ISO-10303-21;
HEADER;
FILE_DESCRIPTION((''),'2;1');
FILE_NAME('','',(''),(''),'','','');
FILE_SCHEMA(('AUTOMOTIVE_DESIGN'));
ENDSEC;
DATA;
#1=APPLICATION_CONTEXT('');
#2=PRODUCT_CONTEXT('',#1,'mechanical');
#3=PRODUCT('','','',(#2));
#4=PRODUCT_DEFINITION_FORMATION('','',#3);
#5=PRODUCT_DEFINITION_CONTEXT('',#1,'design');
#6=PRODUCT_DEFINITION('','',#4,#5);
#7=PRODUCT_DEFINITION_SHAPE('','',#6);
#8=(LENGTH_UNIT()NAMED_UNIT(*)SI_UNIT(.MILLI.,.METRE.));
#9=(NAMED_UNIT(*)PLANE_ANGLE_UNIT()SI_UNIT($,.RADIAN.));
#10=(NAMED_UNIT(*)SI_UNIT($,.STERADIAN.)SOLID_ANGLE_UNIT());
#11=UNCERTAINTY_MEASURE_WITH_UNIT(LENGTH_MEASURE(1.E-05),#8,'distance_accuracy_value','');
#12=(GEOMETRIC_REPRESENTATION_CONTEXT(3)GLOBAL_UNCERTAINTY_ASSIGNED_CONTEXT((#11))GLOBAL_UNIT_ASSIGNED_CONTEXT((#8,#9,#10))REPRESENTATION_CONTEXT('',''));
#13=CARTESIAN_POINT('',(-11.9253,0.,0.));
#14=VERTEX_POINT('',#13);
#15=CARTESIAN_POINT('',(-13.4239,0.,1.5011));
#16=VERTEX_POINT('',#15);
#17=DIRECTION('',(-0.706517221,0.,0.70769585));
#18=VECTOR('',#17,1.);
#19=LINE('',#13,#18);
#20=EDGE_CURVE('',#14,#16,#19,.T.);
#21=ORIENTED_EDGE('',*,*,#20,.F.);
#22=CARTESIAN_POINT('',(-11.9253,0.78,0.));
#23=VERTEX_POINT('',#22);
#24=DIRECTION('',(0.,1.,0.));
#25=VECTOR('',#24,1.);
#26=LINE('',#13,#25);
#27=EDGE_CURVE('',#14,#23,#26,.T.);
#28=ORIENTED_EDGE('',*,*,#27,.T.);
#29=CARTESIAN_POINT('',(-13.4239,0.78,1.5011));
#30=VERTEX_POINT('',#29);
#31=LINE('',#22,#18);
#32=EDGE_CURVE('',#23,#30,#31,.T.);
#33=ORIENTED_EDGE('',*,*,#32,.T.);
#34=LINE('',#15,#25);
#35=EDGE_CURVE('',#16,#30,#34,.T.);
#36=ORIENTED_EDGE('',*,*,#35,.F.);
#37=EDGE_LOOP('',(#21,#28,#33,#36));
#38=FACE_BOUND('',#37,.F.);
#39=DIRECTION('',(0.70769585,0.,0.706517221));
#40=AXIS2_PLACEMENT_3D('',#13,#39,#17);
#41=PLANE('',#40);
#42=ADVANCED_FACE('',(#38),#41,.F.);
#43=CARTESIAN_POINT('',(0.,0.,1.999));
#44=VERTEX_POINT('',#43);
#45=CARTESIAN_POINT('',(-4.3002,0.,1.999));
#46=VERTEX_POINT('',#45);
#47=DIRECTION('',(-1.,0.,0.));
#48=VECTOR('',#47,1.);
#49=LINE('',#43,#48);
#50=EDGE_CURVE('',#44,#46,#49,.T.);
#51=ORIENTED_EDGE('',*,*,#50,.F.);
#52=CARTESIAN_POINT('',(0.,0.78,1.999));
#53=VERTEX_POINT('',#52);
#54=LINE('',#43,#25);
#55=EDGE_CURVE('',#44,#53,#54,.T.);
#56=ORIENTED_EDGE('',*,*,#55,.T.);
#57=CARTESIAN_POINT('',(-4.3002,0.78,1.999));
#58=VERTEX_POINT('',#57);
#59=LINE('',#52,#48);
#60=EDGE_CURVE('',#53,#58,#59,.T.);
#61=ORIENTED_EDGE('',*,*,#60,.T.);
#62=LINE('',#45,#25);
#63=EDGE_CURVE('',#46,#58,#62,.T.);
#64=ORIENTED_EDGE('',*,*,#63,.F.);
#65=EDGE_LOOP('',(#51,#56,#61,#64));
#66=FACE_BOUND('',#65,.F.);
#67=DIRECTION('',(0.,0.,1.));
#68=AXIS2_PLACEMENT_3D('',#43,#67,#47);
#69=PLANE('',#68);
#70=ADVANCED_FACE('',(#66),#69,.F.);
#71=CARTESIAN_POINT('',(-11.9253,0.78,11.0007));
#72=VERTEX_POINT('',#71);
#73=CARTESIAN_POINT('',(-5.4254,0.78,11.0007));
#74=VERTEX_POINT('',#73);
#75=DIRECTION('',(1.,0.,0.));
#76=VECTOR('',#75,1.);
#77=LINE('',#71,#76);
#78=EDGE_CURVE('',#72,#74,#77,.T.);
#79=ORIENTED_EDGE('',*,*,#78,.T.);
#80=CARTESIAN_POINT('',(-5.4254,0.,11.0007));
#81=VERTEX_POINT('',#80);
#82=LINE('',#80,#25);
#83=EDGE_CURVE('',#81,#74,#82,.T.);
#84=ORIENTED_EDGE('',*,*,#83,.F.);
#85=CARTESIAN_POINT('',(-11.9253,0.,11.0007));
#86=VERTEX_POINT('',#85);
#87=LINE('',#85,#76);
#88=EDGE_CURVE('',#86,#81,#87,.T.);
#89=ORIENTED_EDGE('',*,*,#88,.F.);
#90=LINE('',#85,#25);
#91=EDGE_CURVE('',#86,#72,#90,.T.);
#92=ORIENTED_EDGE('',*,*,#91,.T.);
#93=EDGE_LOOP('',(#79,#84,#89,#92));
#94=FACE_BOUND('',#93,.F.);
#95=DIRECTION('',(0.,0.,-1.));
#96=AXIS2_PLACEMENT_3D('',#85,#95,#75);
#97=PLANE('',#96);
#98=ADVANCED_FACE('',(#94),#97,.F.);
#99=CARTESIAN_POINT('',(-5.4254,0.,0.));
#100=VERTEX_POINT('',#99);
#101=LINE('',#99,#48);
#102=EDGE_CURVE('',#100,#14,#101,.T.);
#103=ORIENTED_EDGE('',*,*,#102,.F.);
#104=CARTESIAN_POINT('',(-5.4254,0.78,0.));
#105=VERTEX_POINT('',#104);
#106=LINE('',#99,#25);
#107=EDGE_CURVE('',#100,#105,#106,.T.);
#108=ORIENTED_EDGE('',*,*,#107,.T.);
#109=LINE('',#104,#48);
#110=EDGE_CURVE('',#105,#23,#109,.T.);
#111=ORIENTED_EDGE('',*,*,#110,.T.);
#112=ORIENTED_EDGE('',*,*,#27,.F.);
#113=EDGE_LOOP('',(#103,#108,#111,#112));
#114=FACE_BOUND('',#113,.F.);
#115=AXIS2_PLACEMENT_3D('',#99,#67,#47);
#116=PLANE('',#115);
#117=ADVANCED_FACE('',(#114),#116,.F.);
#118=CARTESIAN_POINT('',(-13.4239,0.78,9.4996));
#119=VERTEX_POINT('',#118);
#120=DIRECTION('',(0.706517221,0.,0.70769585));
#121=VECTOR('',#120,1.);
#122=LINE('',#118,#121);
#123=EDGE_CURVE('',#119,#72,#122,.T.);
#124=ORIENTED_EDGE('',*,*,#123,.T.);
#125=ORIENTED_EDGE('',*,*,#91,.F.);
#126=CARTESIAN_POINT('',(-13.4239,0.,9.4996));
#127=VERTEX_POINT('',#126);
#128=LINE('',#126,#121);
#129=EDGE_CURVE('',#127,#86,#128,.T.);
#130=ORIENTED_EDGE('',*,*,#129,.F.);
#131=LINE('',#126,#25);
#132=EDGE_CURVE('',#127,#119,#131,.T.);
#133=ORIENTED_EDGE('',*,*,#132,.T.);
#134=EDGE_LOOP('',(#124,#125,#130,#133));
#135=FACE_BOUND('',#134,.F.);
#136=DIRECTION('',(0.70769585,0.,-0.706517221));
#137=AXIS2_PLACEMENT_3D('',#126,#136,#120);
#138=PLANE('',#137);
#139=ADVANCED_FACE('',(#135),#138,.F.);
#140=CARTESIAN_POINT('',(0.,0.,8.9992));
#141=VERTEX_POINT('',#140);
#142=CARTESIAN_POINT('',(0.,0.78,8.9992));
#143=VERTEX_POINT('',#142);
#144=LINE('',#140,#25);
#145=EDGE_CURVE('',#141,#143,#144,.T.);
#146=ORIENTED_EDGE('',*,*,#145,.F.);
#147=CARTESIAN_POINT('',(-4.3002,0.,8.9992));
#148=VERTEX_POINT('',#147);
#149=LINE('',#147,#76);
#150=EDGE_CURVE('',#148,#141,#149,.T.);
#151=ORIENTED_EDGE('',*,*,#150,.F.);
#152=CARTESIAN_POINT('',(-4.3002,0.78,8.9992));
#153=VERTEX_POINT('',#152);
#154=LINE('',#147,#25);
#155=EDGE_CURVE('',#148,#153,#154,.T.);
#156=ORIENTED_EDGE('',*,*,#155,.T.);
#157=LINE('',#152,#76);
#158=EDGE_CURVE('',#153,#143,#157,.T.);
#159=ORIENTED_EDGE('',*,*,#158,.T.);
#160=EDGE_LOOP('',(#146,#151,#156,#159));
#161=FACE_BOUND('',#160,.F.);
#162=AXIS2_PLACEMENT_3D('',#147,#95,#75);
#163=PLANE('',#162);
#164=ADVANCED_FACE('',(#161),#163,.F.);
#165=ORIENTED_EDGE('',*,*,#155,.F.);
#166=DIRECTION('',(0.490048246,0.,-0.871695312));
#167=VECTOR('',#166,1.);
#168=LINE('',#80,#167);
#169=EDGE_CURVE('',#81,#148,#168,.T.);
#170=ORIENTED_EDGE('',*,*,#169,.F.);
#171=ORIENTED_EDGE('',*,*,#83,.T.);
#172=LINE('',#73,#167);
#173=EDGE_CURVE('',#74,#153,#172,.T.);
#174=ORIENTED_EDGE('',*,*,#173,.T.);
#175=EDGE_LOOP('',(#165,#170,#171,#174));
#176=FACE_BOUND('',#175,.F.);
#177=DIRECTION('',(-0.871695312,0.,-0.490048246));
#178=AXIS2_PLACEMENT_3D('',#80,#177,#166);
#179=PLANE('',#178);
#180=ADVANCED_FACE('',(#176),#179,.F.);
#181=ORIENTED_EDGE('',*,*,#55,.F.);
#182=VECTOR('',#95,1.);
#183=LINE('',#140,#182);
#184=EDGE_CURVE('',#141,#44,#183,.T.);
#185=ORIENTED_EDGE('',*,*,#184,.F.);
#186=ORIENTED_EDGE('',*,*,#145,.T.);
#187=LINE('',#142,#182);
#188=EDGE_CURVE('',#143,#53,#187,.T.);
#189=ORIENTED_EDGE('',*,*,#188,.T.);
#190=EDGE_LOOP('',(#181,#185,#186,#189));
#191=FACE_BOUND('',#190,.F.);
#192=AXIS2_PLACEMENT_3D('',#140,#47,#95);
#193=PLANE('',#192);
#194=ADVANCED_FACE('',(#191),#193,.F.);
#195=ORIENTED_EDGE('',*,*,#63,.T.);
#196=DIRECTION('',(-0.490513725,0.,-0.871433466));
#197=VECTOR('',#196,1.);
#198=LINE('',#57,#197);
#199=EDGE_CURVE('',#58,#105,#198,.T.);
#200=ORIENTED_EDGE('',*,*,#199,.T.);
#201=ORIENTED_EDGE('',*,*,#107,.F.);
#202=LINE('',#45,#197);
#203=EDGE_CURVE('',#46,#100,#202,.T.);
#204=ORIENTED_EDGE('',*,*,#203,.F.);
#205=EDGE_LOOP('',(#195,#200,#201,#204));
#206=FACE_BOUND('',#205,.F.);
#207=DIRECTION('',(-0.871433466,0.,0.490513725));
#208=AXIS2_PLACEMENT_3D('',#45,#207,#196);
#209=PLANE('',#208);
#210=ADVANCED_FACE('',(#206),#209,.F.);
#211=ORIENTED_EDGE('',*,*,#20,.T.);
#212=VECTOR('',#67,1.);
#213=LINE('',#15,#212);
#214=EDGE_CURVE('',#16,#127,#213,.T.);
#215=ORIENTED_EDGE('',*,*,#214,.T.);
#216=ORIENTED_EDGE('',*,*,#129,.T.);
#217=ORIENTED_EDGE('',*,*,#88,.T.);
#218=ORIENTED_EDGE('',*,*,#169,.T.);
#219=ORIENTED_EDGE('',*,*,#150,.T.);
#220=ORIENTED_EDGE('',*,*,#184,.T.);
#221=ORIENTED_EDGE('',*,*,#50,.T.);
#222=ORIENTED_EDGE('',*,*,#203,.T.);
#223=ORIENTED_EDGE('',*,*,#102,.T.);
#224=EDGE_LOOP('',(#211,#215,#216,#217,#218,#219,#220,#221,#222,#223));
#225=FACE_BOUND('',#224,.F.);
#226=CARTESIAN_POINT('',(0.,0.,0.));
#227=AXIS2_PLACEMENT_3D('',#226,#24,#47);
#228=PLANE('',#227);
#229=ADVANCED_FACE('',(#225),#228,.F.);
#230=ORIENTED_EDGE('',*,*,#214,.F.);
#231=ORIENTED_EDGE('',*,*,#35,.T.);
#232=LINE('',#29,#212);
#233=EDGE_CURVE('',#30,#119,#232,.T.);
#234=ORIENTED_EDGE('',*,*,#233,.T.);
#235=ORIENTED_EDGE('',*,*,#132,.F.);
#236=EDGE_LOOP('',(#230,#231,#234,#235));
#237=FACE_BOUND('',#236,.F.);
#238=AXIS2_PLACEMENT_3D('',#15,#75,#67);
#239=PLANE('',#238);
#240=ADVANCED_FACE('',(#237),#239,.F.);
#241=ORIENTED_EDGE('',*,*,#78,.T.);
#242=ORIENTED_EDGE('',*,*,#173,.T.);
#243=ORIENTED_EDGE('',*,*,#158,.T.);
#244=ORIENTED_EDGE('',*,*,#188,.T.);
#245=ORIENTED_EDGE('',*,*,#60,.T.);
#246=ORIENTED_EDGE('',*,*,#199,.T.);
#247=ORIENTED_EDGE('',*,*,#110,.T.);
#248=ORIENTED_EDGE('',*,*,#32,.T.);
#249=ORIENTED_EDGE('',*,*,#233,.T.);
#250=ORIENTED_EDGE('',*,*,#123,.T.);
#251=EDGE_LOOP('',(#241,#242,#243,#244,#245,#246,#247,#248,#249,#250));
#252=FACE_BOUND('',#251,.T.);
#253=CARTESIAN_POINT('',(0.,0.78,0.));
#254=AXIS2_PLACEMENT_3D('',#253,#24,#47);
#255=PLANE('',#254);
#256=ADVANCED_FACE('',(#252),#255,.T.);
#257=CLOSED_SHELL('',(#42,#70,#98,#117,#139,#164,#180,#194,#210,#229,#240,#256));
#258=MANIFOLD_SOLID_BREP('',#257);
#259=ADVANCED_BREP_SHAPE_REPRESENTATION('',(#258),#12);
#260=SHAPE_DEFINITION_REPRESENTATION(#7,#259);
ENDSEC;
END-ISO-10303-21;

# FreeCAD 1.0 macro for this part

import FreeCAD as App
import Part
import Sketcher

V = App.Vector
Q = App.Units.Quantity


def add_polygon(sketch, points):
    """Adds a closed chain of lines whose ends are joined by coincident constraints."""
    first, n = sketch.GeometryCount, len(points)
    for a, b in zip(points, points[1:] + points[:1]):
        sketch.addGeometry(Part.LineSegment(App.Vector(*a, 0), App.Vector(*b, 0)), False)
    for i in range(n):
        sketch.addConstraint(Sketcher.Constraint("Coincident", first + i, 2, first + (i + 1) % n, 1))

doc = App.newDocument("Part")
body = doc.addObject("PartDesign::Body", "Body")

sketch1 = body.newObject("Sketcher::SketchObject", "Sketch")
sketch1.AttachmentSupport = (doc.getObject("XZ_Plane"), [""])
sketch1.MapMode = "FlatFace"
add_polygon(sketch1, [(0, 2), (-4.3, 2), (-5.4, 0), (-11.9, 0), (-13.4, 1.5), (-13.4, 9.5), (-11.9, 11), (-5.4, 11), (-4.3, 9), (0, 9)])
sketch1.addConstraint([
    Sketcher.Constraint("Horizontal", 0),
    Sketcher.Constraint("Horizontal", 2),
    Sketcher.Constraint("Vertical", 4),
    Sketcher.Constraint("Horizontal", 6),
    Sketcher.Constraint("Horizontal", 8),
    Sketcher.Constraint("Vertical", 9),
    Sketcher.Constraint("PointOnObject", 1, 2, -1),
    Sketcher.Constraint("PointOnObject", 8, 2, -2),
    Sketcher.Constraint("Vertical", 2, 2, 5, 2),
    Sketcher.Constraint("Vertical", 1, 2, 6, 2),
    Sketcher.Constraint("Vertical", 0, 2, 7, 2),
    Sketcher.Constraint("Equal", 3, 5),
    Sketcher.Constraint("DistanceX", 2, 2, 2, 1, Q("6.5 mm")),
    Sketcher.Constraint("Distance", 1, Q("2.294 mm")),
    Sketcher.Constraint("Distance", 3, Q("2.121 mm")),
    Sketcher.Constraint("Distance", 7, Q("2.296 mm")),
    Sketcher.Constraint("DistanceX", 0, 2, 0, 1, Q("4.3002 mm")),
    Sketcher.Constraint("DistanceY", 4, 1, 4, 2, Q("7.9985 mm")),
    Sketcher.Constraint("DistanceY", 9, 2, 9, 1, Q("7.0002 mm")),
    Sketcher.Constraint("DistanceY", -1, 1, 0, 2, Q("1.999 mm")),
])
pad1 = body.newObject("PartDesign::Pad", "Pad")
pad1.Profile = sketch1
pad1.Length = 0.78
pad1.Reversed = True

doc.recompute()
